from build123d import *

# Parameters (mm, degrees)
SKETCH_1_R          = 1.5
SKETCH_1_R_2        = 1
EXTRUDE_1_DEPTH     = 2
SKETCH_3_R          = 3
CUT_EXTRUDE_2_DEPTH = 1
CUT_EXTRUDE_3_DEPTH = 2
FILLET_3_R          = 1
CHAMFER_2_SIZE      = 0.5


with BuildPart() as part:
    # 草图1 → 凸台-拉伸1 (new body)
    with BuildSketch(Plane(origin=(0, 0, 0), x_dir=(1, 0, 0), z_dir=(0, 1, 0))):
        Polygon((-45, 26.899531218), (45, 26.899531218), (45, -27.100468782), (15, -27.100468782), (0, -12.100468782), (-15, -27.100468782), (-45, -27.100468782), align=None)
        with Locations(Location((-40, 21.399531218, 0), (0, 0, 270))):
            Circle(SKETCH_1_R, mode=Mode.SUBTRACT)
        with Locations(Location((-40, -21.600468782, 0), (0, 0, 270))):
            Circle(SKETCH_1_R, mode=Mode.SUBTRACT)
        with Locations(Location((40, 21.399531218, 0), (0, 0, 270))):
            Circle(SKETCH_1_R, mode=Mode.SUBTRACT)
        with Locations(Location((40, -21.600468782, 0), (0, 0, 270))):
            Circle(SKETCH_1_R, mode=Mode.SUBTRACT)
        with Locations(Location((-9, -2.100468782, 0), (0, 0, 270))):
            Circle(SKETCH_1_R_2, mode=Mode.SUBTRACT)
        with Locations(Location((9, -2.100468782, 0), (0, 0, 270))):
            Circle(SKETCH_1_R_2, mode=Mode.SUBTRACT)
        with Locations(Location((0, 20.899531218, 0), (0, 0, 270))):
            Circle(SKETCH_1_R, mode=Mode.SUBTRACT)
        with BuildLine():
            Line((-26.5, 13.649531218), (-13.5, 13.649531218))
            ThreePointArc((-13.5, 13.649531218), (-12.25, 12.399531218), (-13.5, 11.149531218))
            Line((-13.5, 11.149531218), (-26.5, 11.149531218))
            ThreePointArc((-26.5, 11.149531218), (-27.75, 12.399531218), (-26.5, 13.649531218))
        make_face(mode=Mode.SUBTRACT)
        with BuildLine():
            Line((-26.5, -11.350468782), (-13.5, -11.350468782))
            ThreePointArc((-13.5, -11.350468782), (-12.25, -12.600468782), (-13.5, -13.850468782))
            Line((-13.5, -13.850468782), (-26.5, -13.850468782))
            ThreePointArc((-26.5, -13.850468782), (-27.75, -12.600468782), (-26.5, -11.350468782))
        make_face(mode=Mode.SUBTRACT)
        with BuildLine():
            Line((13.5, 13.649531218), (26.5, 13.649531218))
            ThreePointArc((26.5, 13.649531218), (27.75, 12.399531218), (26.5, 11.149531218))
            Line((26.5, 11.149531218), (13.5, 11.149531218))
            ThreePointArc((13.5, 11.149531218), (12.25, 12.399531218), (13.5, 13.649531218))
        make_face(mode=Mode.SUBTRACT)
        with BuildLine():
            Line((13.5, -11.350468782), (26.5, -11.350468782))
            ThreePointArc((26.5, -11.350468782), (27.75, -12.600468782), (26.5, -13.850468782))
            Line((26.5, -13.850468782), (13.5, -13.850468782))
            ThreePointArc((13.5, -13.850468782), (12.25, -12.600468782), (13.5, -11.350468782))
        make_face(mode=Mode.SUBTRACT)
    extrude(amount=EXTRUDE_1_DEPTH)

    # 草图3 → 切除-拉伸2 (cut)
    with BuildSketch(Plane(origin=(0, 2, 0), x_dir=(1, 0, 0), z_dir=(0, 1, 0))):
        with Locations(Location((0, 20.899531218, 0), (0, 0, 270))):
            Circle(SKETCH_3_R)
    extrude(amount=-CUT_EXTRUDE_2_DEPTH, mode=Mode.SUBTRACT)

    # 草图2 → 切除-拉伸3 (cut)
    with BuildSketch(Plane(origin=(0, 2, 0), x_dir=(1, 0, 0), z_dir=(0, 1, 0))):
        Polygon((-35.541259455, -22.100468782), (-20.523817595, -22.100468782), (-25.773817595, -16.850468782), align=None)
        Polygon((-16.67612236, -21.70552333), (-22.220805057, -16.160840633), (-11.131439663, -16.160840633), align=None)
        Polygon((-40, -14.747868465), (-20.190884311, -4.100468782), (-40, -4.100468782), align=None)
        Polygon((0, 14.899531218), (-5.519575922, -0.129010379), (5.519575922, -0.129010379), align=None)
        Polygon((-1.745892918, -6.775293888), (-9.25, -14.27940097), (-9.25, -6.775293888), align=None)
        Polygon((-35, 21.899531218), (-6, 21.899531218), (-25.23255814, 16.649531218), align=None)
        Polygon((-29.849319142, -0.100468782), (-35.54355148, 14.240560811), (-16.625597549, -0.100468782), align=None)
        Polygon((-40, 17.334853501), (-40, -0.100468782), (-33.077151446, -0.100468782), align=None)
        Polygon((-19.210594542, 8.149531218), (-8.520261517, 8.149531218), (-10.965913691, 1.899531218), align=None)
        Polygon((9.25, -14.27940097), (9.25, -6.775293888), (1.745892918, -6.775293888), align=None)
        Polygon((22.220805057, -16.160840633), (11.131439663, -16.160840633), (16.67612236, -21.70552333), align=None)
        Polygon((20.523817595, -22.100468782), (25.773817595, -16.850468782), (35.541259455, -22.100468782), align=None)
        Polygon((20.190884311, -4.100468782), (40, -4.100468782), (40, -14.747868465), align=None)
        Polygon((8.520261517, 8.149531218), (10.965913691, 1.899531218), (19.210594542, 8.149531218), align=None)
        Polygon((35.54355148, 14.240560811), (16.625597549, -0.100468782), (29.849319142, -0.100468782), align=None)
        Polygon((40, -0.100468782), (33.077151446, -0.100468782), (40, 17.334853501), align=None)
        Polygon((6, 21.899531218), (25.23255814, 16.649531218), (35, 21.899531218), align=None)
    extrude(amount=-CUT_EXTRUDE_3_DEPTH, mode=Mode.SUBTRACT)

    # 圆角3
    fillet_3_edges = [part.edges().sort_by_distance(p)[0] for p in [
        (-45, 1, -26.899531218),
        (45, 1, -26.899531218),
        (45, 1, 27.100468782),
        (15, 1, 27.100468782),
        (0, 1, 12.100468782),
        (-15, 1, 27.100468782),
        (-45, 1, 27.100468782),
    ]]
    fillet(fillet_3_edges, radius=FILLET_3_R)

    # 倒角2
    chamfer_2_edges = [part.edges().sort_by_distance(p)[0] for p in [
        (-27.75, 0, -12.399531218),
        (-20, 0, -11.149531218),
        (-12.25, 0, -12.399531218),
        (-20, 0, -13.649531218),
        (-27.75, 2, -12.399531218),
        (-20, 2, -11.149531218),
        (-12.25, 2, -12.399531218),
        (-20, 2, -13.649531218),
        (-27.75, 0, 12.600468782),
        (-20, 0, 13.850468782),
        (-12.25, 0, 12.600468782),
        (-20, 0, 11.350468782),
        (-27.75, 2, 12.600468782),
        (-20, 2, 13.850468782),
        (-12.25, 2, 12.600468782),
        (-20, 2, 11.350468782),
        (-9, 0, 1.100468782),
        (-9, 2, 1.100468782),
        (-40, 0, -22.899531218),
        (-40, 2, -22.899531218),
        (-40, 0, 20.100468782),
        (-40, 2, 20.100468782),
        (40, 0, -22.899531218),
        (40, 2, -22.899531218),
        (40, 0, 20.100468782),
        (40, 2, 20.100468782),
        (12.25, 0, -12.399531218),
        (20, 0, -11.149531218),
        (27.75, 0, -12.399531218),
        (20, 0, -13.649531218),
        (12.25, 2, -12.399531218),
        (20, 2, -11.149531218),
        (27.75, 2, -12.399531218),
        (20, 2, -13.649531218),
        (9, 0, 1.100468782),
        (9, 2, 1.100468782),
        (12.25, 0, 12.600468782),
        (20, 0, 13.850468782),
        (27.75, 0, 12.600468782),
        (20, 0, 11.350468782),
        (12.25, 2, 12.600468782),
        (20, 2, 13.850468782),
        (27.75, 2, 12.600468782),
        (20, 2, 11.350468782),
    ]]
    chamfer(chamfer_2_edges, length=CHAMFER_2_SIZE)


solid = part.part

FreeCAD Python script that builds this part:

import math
import FreeCAD as App
import Part
import Sketcher
Q = App.Units.Quantity


def edges_at(feature, points):
    """Names of the edges that pass closest to the given points."""
    edges = feature.Shape.Edges
    near = lambda p: min(range(len(edges)), key=lambda i: edges[i].distToShape(Part.Vertex(*p))[0])
    return sorted({f"Edge{near(p) + 1}" for p in points})


def add_polygon(sketch, points):
    """Adds a closed chain of lines whose ends are joined by coincident constraints."""
    first, n = sketch.GeometryCount, len(points)
    for a, b in zip(points, points[1:] + points[:1]):
        sketch.addGeometry(Part.LineSegment(App.Vector(*a, 0), App.Vector(*b, 0)), False)
    for i in range(n):
        sketch.addConstraint(Sketcher.Constraint("Coincident", first + i, 2, first + (i + 1) % n, 1))

doc = App.newDocument("Part")
params = doc.addObject("Spreadsheet::Sheet", "Params")
for row, (alias, value) in enumerate([
    ("sketch1_diameter", "3 mm"),
    ("sketch1_diameter2", "2 mm"),
    ("sketch1_width", "90 mm"),
    ("sketch1_width2", "30 mm"),
    ("sketch1_width3", "13 mm"),
    ("pad1_length", "2 mm"),
    ("sketch2_diameter", "6 mm"),
    ("pocket1_length", "1 mm"),
    ("sketch3_width", "29 mm"),
    ("pocket2_length", "2 mm"),
    ("fillet_radius", "1 mm"),
    ("chamfer_size", "0.5 mm"),
], start=1):
    params.set(f"A{row}", alias)
    params.set(f"B{row}", "=" + value)
    params.setAlias(f"B{row}", alias)

body = doc.addObject("PartDesign::Body", "Body")

# Sketch on XZ plane
sketch1 = doc.addObject("Sketcher::SketchObject", "Sketch")
body.addObject(sketch1)
sketch1.AttachmentSupport = (doc.XZ_Plane, [""])
sketch1.MapMode = "FlatFace"
add_polygon(sketch1, [(45, -26.9), (-45, -26.9), (-45, 27.1), (-15, 27.1), (0, 12.1), (15, 27.1), (45, 27.1)])  # lines 0-6
sketch1.addGeometry(Part.Circle(App.Vector(40, 21.6, 0), App.Vector(0, 0, 1), 1.5), False)  # 7
sketch1.addGeometry(Part.LineSegment(App.Vector(13.5, 11.4, 0), App.Vector(26.5, 11.4, 0)), False)  # 8
sketch1.addGeometry(Part.ArcOfCircle(Part.Circle(App.Vector(26.5, 12.6, 0), App.Vector(0, 0, 1), 1.2), math.radians(-90), math.radians(90)), False)  # 9
sketch1.addGeometry(Part.LineSegment(App.Vector(26.5, 13.9, 0), App.Vector(13.5, 13.9, 0)), False)  # 10
sketch1.addGeometry(Part.ArcOfCircle(Part.Circle(App.Vector(13.5, 12.6, 0), App.Vector(0, 0, 1), 1.2), math.radians(90), math.radians(270)), False)  # 11
sketch1.addGeometry(Part.Circle(App.Vector(9, 2.1, 0), App.Vector(0, 0, 1), 1), False)  # 12
sketch1.addGeometry(Part.LineSegment(App.Vector(-26.5, 11.4, 0), App.Vector(-13.5, 11.4, 0)), False)  # 13
sketch1.addGeometry(Part.ArcOfCircle(Part.Circle(App.Vector(-13.5, 12.6, 0), App.Vector(0, 0, 1), 1.2), math.radians(-90), math.radians(90)), False)  # 14
sketch1.addGeometry(Part.LineSegment(App.Vector(-13.5, 13.9, 0), App.Vector(-26.5, 13.9, 0)), False)  # 15
sketch1.addGeometry(Part.ArcOfCircle(Part.Circle(App.Vector(-26.5, 12.6, 0), App.Vector(0, 0, 1), 1.2), math.radians(90), math.radians(270)), False)  # 16
sketch1.addGeometry(Part.Circle(App.Vector(-40, 21.6, 0), App.Vector(0, 0, 1), 1.5), False)  # 17
sketch1.addGeometry(Part.Circle(App.Vector(-9, 2.1, 0), App.Vector(0, 0, 1), 1), False)  # 18
sketch1.addGeometry(Part.Circle(App.Vector(40, -21.4, 0), App.Vector(0, 0, 1), 1.5), False)  # 19
sketch1.addGeometry(Part.LineSegment(App.Vector(13.5, -13.6, 0), App.Vector(26.5, -13.6, 0)), False)  # 20
sketch1.addGeometry(Part.ArcOfCircle(Part.Circle(App.Vector(26.5, -12.4, 0), App.Vector(0, 0, 1), 1.2), math.radians(-90), math.radians(90)), False)  # 21
sketch1.addGeometry(Part.LineSegment(App.Vector(26.5, -11.1, 0), App.Vector(13.5, -11.1, 0)), False)  # 22
sketch1.addGeometry(Part.ArcOfCircle(Part.Circle(App.Vector(13.5, -12.4, 0), App.Vector(0, 0, 1), 1.2), math.radians(90), math.radians(270)), False)  # 23
sketch1.addGeometry(Part.LineSegment(App.Vector(-26.5, -13.6, 0), App.Vector(-13.5, -13.6, 0)), False)  # 24
sketch1.addGeometry(Part.ArcOfCircle(Part.Circle(App.Vector(-13.5, -12.4, 0), App.Vector(0, 0, 1), 1.2), math.radians(-90), math.radians(90)), False)  # 25
sketch1.addGeometry(Part.LineSegment(App.Vector(-13.5, -11.1, 0), App.Vector(-26.5, -11.1, 0)), False)  # 26
sketch1.addGeometry(Part.ArcOfCircle(Part.Circle(App.Vector(-26.5, -12.4, 0), App.Vector(0, 0, 1), 1.2), math.radians(90), math.radians(270)), False)  # 27
sketch1.addGeometry(Part.Circle(App.Vector(0, -20.9, 0), App.Vector(0, 0, 1), 1.5), False)  # 28
sketch1.addGeometry(Part.Circle(App.Vector(-40, -21.4, 0), App.Vector(0, 0, 1), 1.5), False)  # 29
sketch1.addConstraint([
    Sketcher.Constraint("Tangent", 8, 2, 9, 1),
    Sketcher.Constraint("Tangent", 9, 2, 10, 1),
    Sketcher.Constraint("Tangent", 10, 2, 11, 1),
    Sketcher.Constraint("Tangent", 11, 2, 8, 1),
    Sketcher.Constraint("Tangent", 13, 2, 14, 1),
    Sketcher.Constraint("Tangent", 14, 2, 15, 1),
    Sketcher.Constraint("Tangent", 15, 2, 16, 1),
    Sketcher.Constraint("Tangent", 16, 2, 13, 1),
    Sketcher.Constraint("Tangent", 20, 2, 21, 1),
    Sketcher.Constraint("Tangent", 21, 2, 22, 1),
    Sketcher.Constraint("Tangent", 22, 2, 23, 1),
    Sketcher.Constraint("Tangent", 23, 2, 20, 1),
    Sketcher.Constraint("Tangent", 24, 2, 25, 1),
    Sketcher.Constraint("Tangent", 25, 2, 26, 1),
    Sketcher.Constraint("Tangent", 26, 2, 27, 1),
    Sketcher.Constraint("Tangent", 27, 2, 24, 1),
    Sketcher.Constraint("Horizontal", 0),
    Sketcher.Constraint("Vertical", 1),
    Sketcher.Constraint("Horizontal", 2),
    Sketcher.Constraint("Horizontal", 5),
    Sketcher.Constraint("Vertical", 6),
    Sketcher.Constraint("Horizontal", 8),
    Sketcher.Constraint("Horizontal", 10),
    Sketcher.Constraint("Horizontal", 13),
    Sketcher.Constraint("Horizontal", 15),
    Sketcher.Constraint("Horizontal", 20),
    Sketcher.Constraint("Horizontal", 22),
    Sketcher.Constraint("Horizontal", 24),
    Sketcher.Constraint("Horizontal", 26),
    Sketcher.Constraint("Equal", 11, 14),
    Sketcher.Constraint("Equal", 7, 17),
    Sketcher.Constraint("Equal", 12, 18),
    Sketcher.Constraint("Equal", 17, 19),
    Sketcher.Constraint("Equal", 16, 21),
    Sketcher.Constraint("Equal", 23, 25),
    Sketcher.Constraint("Equal", 19, 28),
    Sketcher.Constraint("Equal", 28, 29),
    Sketcher.Constraint("Symmetric", 11, 3, 14, 3, -2),
    Sketcher.Constraint("Symmetric", 7, 3, 17, 3, -2),
    Sketcher.Constraint("Symmetric", 12, 3, 18, 3, -2),
    Sketcher.Constraint("Symmetric", 23, 3, 25, 3, -2),
    Sketcher.Constraint("Symmetric", 19, 3, 29, 3, -2),
    Sketcher.Constraint("Symmetric", 2, 2, 4, 2, -2),
    Sketcher.Constraint("PointOnObject", 28, 3, -2),
    Sketcher.Constraint("PointOnObject", 3, 2, -2),
    Sketcher.Constraint("Perpendicular", 3, 4),
    Sketcher.Constraint("Vertical", 7, 3, 19, 3),
    Sketcher.Constraint("Vertical", 9, 3, 21, 3),
    Sketcher.Constraint("Vertical", 11, 3, 23, 3),
    Sketcher.Constraint("Vertical", 16, 3, 27, 3),
    Sketcher.Constraint("Equal", 2, 5),
    Sketcher.Constraint("Equal", 10, 13),
    Sketcher.Constraint("Diameter", 7, Q("3 mm")),
    Sketcher.Constraint("Diameter", 12, Q("2 mm")),
    Sketcher.Constraint("DistanceX", 0, 2, 0, 1, Q("90 mm")),
    Sketcher.Constraint("DistanceX", 2, 1, 2, 2, Q("30 mm")),
    Sketcher.Constraint("DistanceX", 8, 1, 8, 2, Q("13 mm")),
    Sketcher.Constraint("DistanceY", 1, 1, 1, 2, Q("54 mm")),
    Sketcher.Constraint("Radius", 9, Q("1.25 mm")),
    Sketcher.Constraint("DistanceX", -1, 1, 7, 3, Q("40 mm")),
    Sketcher.Constraint("DistanceX", -1, 1, 12, 3, Q("9 mm")),
    Sketcher.Constraint("DistanceY", 9, 3, 7, 3, Q("9 mm")),
    Sketcher.Constraint("DistanceX", 14, 3, 11, 3, Q("27 mm")),
    Sketcher.Constraint("DistanceY", 19, 3, 9, 3, Q("34 mm")),
    Sketcher.Constraint("DistanceY", 19, 3, 21, 3, Q("9 mm")),
    Sketcher.Constraint("DistanceY", 28, 3, 12, 3, Q("23 mm")),
    Sketcher.Constraint("DistanceY", 0, 2, 28, 3, Q("6 mm")),
    Sketcher.Constraint("DistanceY", 12, 3, 11, 3, Q("10.5 mm")),
    Sketcher.Constraint("DistanceY", -1, 1, 7, 3, Q("21.600469 mm")),
])
sketch1.setExpression("Constraints[59]", "Params.sketch1_diameter")
sketch1.setExpression("Constraints[60]", "Params.sketch1_diameter2")
sketch1.setExpression("Constraints[61]", "Params.sketch1_width")
sketch1.setExpression("Constraints[62]", "Params.sketch1_width2")
sketch1.setExpression("Constraints[63]", "Params.sketch1_width3")
pad1 = doc.addObject("PartDesign::Pad", "Pad")
body.addObject(pad1)
pad1.Profile = sketch1
pad1.setExpression("Length", "Params.pad1_length")
pad1.Reversed = True

# Sketch on XZ plane
sketch2 = doc.addObject("Sketcher::SketchObject", "Sketch001")
body.addObject(sketch2)
sketch2.AttachmentSupport = (doc.XZ_Plane, [""])
sketch2.MapMode = "FlatFace"
sketch2.AttachmentOffset = App.Placement(App.Vector(0, 0, -2), App.Rotation())
sketch2.addGeometry(Part.Circle(App.Vector(0, -20.9, 0), App.Vector(0, 0, 1), 3), False)
sketch2.addConstraint([
    Sketcher.Constraint("PointOnObject", 0, 3, -2),
    Sketcher.Constraint("Diameter", 0, Q("6 mm")),
    Sketcher.Constraint("DistanceY", 0, 3, -1, 1, Q("20.899531 mm")),
])
sketch2.setExpression("Constraints[1]", "Params.sketch2_diameter")
pocket1 = doc.addObject("PartDesign::Pocket", "Pocket")
body.addObject(pocket1)
pocket1.Profile = sketch2
pocket1.setExpression("Length", "Params.pocket1_length")
pocket1.Reversed = True

# Sketch on XZ plane
sketch3 = doc.addObject("Sketcher::SketchObject", "Sketch002")
body.addObject(sketch3)
sketch3.AttachmentSupport = (doc.XZ_Plane, [""])
sketch3.MapMode = "FlatFace"
sketch3.AttachmentOffset = App.Placement(App.Vector(0, 0, -2), App.Rotation())
add_polygon(sketch3, [(-36, 22), (-21, 22), (-26, 17)])  # lines 0-2
add_polygon(sketch3, [(-22, 16), (-17, 22), (-11, 16)])  # lines 3-5
add_polygon(sketch3, [(-40, 15), (-20, 4), (-40, 4)])  # lines 6-8
add_polygon(sketch3, [(0, -15), (-6, 0), (6, 0)])  # lines 9-11
add_polygon(sketch3, [(-9, 14), (-2, 7), (-9, 7)])  # lines 12-14
add_polygon(sketch3, [(-6, -22), (-35, -22), (-25, -17)])  # lines 15-17
add_polygon(sketch3, [(-36, -14), (-30, 0), (-17, 0)])  # lines 18-20
add_polygon(sketch3, [(-40, -17), (-40, 0), (-33, 0)])  # lines 21-23
add_polygon(sketch3, [(-9, -8), (-19, -8), (-11, -2)])  # lines 24-26
add_polygon(sketch3, [(9, 14), (9, 7), (2, 7)])  # lines 27-29
add_polygon(sketch3, [(22, 16), (11, 16), (17, 22)])  # lines 30-32
add_polygon(sketch3, [(26, 17), (21, 22), (36, 22)])  # lines 33-35
add_polygon(sketch3, [(40, 4), (20, 4), (40, 15)])  # lines 36-38
add_polygon(sketch3, [(9, -8), (11, -2), (19, -8)])  # lines 39-41
add_polygon(sketch3, [(36, -14), (17, 0), (30, 0)])  # lines 42-44
add_polygon(sketch3, [(33, 0), (40, 0), (40, -17)])  # lines 45-47
add_polygon(sketch3, [(6, -22), (25, -17), (35, -22)])  # lines 48-50
sketch3.addConstraint([
    Sketcher.Constraint("Horizontal", 0),
    Sketcher.Constraint("Horizontal", 5),
    Sketcher.Constraint("Horizontal", 7),
    Sketcher.Constraint("Vertical", 8),
    Sketcher.Constraint("Horizontal", 10),
    Sketcher.Constraint("Horizontal", 13),
    Sketcher.Constraint("Vertical", 14),
    Sketcher.Constraint("Horizontal", 15),
    Sketcher.Constraint("Horizontal", 19),
    Sketcher.Constraint("Vertical", 21),
    Sketcher.Constraint("Horizontal", 22),
    Sketcher.Constraint("Horizontal", 24),
    Sketcher.Constraint("Vertical", 27),
    Sketcher.Constraint("Horizontal", 28),
    Sketcher.Constraint("Horizontal", 30),
    Sketcher.Constraint("Horizontal", 34),
    Sketcher.Constraint("Horizontal", 36),
    Sketcher.Constraint("Vertical", 38),
    Sketcher.Constraint("Horizontal", 41),
    Sketcher.Constraint("Horizontal", 43),
    Sketcher.Constraint("Horizontal", 45),
    Sketcher.Constraint("Vertical", 46),
    Sketcher.Constraint("Horizontal", 50),
    Sketcher.Constraint("Symmetric", 13, 2, 27, 2, -2),
    Sketcher.Constraint("Symmetric", 4, 2, 30, 2, -2),
    Sketcher.Constraint("Symmetric", 3, 2, 31, 2, -2),
    Sketcher.Constraint("Symmetric", 0, 2, 33, 2, -2),
    Sketcher.Constraint("Symmetric", 1, 2, 35, 2, -2),
    Sketcher.Constraint("Symmetric", 6, 2, 36, 2, -2),
    Sketcher.Constraint("Symmetric", 8, 2, 37, 2, -2),
    Sketcher.Constraint("Symmetric", 25, 2, 39, 2, -2),
    Sketcher.Constraint("Symmetric", 24, 2, 40, 2, -2),
    Sketcher.Constraint("Symmetric", 19, 2, 42, 2, -2),
    Sketcher.Constraint("Symmetric", 20, 2, 44, 2, -2),
    Sketcher.Constraint("Symmetric", 21, 2, 45, 2, -2),
    Sketcher.Constraint("Symmetric", 16, 2, 48, 2, -2),
    Sketcher.Constraint("Symmetric", 15, 2, 49, 2, -2),
    Sketcher.Constraint("PointOnObject", 11, 2, -2),
    Sketcher.Constraint("Parallel", 1, 3),
    Sketcher.Constraint("Perpendicular", 3, 4),
    Sketcher.Constraint("Parallel", 2, 6),
    Sketcher.Constraint("Parallel", 4, 12),
    Sketcher.Constraint("Parallel", 18, 23),
    Sketcher.Constraint("Parallel", 20, 25),
    Sketcher.Constraint("Perpendicular", 12, 29),
    Sketcher.Constraint("Parallel", 29, 31),
    Sketcher.Constraint("Perpendicular", 31, 32),
    Sketcher.Constraint("Parallel", 16, 35),
    Sketcher.Constraint("Parallel", 35, 37),
    Sketcher.Constraint("Parallel", 44, 47),
    Sketcher.Constraint("Horizontal", 19, 2, 21, 2),
    Sketcher.Constraint("Horizontal", 14, 2, 29, 2),
    Sketcher.Constraint("Horizontal", 23, 2, 46, 2),
    Sketcher.Constraint("Vertical", 8, 2, 21, 2),
    Sketcher.Constraint("Equal", 24, 41),
    Sketcher.Constraint("Equal", 19, 43),
    Sketcher.Constraint("Equal", 15, 50),
    Sketcher.Constraint("Equal", 9, 11),
    Sketcher.Constraint("Equal", 2, 16),
    Sketcher.Constraint("DistanceX", 15, 2, 15, 1, Q("29 mm")),
    Sketcher.Constraint("DistanceX", 7, 2, -1, 1, Q("40 mm")),
    Sketcher.Constraint("DistanceX", 15, 2, -1, 1, Q("35 mm")),
    Sketcher.Constraint("DistanceY", 6, 2, 0, 2, Q("18 mm")),
    Sketcher.Constraint("DistanceY", 11, 2, 6, 2, Q("19 mm")),
    Sketcher.Constraint("DistanceY", 15, 2, 7, 2, Q("26 mm")),
    Sketcher.Constraint("DistanceY", 18, 2, 6, 2, Q("4 mm")),
    Sketcher.Constraint("DistanceY", 25, 2, 19, 2, Q("2 mm")),
    Sketcher.Constraint("DistanceY", 16, 2, 24, 2, Q("8.5 mm")),
    Sketcher.Constraint("DistanceX", 13, 2, 27, 2, Q("18.5 mm")),
    Sketcher.Constraint("DistanceX", 1, 2, 0, 2, Q("5.25 mm")),
    Sketcher.Constraint("DistanceY", 8, 1, 8, 2, Q("10.6474 mm")),
    Sketcher.Constraint("DistanceX", 0, 1, 0, 2, Q("15.017442 mm")),
    Sketcher.Constraint("DistanceX", 10, 1, 10, 2, Q("11.039152 mm")),
    Sketcher.Constraint("DistanceX", 19, 1, 19, 2, Q("13.223722 mm")),
    Sketcher.Constraint("DistanceX", 22, 1, 22, 2, Q("6.922849 mm")),
    Sketcher.Constraint("DistanceY", -1, 1, 14, 2, Q("14.279401 mm")),
    Sketcher.Constraint("DistanceX", 3, 2, 10, 2, Q("22.195698 mm")),
    Sketcher.Constraint("DistanceX", 18, 2, 1, 2, Q("4.075502 mm")),
    Sketcher.Constraint("DistanceX", 20, 2, 22, 2, Q("2.4664 mm")),
    Sketcher.Constraint("Distance", 12, Q("10.61241 mm")),
    Sketcher.Constraint("Distance", 25, Q("10.345881 mm")),
    Sketcher.Constraint("Distance", 26, Q("6.711461 mm")),
    Sketcher.Constraint("DistanceX", 5, 2, 5, 1, Q("11.089365 mm")),
    Sketcher.Constraint("DistanceY", 21, 1, 21, 2, Q("17.435322 mm")),
    Sketcher.Constraint("DistanceY", -1, 1, 0, 2, Q("22.100469 mm")),
    Sketcher.Constraint("DistanceY", -1, 1, 4, 2, Q("16.160841 mm")),
    Sketcher.Constraint("DistanceY", -1, 1, 9, 2, Q("0.12901 mm")),
    Sketcher.Constraint("DistanceX", 26, 2, -1, 1, Q("8.520262 mm")),
])
sketch3.setExpression("Constraints[110]", "Params.sketch3_width")
pocket2 = doc.addObject("PartDesign::Pocket", "Pocket001")
body.addObject(pocket2)
pocket2.Profile = sketch3
pocket2.setExpression("Length", "Params.pocket2_length")
pocket2.Reversed = True
doc.recompute()

fillet = doc.addObject("PartDesign::Fillet", "Fillet")
body.addObject(fillet)
fillet.Base = (pocket2, edges_at(pocket2, [
    (-45, 1, -26.9),
    (45, 1, -26.9),
    (45, 1, 27.1),
    (15, 1, 27.1),
    (0, 1, 12.1),
    (-15, 1, 27.1),
    (-45, 1, 27.1),
]))
fillet.setExpression("Radius", "Params.fillet_radius")
doc.recompute()

chamfer = doc.addObject("PartDesign::Chamfer", "Chamfer")
body.addObject(chamfer)
chamfer.Base = (fillet, edges_at(fillet, [
    (-27.75, 0, -12.4),
    (-20, 0, -11.15),
    (-12.25, 0, -12.4),
    (-20, 0, -13.65),
    (-27.75, 2, -12.4),
    (-20, 2, -11.15),
    (-12.25, 2, -12.4),
    (-20, 2, -13.65),
    (-27.75, 0, 12.6),
    (-20, 0, 13.85),
    (-12.25, 0, 12.6),
    (-20, 0, 11.35),
    (-27.75, 2, 12.6),
    (-20, 2, 13.85),
    (-12.25, 2, 12.6),
    (-20, 2, 11.35),
    (-9, 0, 1.1),
    (-9, 2, 1.1),
    (-40, 0, -22.9),
    (-40, 2, -22.9),
    (-40, 0, 20.1),
    (-40, 2, 20.1),
    (40, 0, -22.9),
    (40, 2, -22.9),
    (40, 0, 20.1),
    (40, 2, 20.1),
    (12.25, 0, -12.4),
    (20, 0, -11.15),
    (27.75, 0, -12.4),
    (20, 0, -13.65),
    (12.25, 2, -12.4),
    (20, 2, -11.15),
    (27.75, 2, -12.4),
    (20, 2, -13.65),
    (9, 0, 1.1),
    (9, 2, 1.1),
    (12.25, 0, 12.6),
    (20, 0, 13.85),
    (27.75, 0, 12.6),
    (20, 0, 11.35),
    (12.25, 2, 12.6),
    (20, 2, 13.85),
    (27.75, 2, 12.6),
    (20, 2, 11.35),
]))
chamfer.setExpression("Size", "Params.chamfer_size")

doc.recompute()
